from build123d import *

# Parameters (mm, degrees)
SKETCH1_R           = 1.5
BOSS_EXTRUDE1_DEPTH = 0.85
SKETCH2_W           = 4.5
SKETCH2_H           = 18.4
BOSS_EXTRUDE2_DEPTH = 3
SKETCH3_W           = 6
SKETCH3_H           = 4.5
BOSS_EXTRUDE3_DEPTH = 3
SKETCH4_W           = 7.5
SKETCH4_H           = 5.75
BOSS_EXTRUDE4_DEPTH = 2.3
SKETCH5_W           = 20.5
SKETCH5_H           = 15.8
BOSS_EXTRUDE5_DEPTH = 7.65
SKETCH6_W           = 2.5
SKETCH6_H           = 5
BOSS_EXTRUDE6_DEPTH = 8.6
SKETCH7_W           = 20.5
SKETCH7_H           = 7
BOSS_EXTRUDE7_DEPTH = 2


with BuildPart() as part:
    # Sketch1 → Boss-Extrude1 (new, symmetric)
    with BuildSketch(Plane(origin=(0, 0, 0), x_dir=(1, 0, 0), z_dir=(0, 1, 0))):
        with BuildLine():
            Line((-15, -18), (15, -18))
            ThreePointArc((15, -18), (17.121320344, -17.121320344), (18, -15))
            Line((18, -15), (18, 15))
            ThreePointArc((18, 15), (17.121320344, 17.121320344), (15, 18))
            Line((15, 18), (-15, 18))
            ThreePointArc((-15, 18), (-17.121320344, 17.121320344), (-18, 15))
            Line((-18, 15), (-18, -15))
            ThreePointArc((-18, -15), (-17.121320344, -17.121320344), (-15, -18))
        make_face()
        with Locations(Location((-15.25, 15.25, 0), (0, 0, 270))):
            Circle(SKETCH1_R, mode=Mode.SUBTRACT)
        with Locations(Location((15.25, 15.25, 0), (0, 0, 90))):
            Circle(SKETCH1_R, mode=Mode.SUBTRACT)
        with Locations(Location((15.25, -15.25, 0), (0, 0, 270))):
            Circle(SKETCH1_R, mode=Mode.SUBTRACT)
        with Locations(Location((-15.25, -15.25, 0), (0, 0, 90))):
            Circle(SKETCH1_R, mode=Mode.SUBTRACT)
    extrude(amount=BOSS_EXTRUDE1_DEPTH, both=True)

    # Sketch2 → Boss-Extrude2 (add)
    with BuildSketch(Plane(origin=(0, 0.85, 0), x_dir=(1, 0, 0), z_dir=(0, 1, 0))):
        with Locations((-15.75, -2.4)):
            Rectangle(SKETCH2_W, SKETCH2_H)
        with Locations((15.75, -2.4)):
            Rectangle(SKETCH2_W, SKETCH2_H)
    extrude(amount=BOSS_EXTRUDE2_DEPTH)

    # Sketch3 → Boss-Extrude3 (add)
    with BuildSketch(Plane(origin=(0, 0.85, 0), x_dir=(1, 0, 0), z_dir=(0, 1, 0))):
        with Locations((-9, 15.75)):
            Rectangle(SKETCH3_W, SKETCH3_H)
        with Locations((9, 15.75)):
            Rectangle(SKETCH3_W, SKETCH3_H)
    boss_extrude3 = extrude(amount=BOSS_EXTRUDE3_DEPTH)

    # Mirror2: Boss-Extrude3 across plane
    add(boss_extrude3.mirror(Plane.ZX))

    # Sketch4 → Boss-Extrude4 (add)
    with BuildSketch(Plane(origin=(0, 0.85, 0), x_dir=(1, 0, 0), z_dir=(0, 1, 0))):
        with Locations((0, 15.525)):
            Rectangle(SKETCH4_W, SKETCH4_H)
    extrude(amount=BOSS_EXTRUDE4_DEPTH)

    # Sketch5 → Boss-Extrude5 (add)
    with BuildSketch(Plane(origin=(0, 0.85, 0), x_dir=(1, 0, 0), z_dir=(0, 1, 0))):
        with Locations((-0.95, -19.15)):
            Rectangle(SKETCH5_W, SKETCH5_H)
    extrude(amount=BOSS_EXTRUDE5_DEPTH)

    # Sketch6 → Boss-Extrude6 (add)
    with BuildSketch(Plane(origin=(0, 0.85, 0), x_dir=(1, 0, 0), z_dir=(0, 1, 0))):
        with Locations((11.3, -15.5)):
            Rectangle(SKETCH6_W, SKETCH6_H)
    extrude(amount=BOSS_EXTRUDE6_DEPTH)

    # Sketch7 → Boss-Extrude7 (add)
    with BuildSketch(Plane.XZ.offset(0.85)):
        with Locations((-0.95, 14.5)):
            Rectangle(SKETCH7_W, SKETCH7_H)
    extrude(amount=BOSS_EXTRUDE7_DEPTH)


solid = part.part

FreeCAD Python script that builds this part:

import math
import FreeCAD as App
import Part
import Sketcher
Q = App.Units.Quantity

doc = App.newDocument("Part")
params = doc.addObject("Spreadsheet::Sheet", "Params")
for row, (alias, value) in enumerate([
    ("sketch1_diameter", "3 mm"),
    ("sketch1_radius", "3 mm"),
    ("sketch1_width", "30 mm"),
    ("pad1_length", "1.7 mm"),
    ("sketch2_width", "4.5 mm"),
    ("sketch2_height", "18.4 mm"),
    ("pad2_length", "3 mm"),
    ("sketch3_width", "6 mm"),
    ("sketch3_height", "4.5 mm"),
    ("pad3_length", "3 mm"),
    ("sketch4_width", "7.5 mm"),
    ("sketch4_height", "5.75 mm"),
    ("pad4_length", "2.3 mm"),
    ("sketch5_width", "20.5 mm"),
    ("sketch5_height", "15.8 mm"),
    ("pad5_length", "7.65 mm"),
    ("sketch6_height", "5 mm"),
    ("sketch6_width", "2.5 mm"),
    ("pad6_length", "8.6 mm"),
    ("sketch7_height", "7 mm"),
    ("sketch7_width", "20.5 mm"),
    ("pad7_length", "2 mm"),
], start=1):
    params.set(f"A{row}", alias)
    params.set(f"B{row}", "=" + value)
    params.setAlias(f"B{row}", alias)

body = doc.addObject("PartDesign::Body", "Body")

# Sketch on XZ plane
sketch1 = body.newObject("Sketcher::SketchObject", "Sketch")
sketch1.AttachmentSupport = (doc.getObject("XZ_Plane"), [""])
sketch1.MapMode = "FlatFace"
sketch1.addGeometry([
    Part.LineSegment(App.Vector(-15, 18, 0), App.Vector(15, 18, 0)),  # 0
    Part.ArcOfCircle(Part.Circle(App.Vector(15, 15, 0), App.Vector(0, 0, 1), 3), math.radians(0), math.radians(90)),  # 1
    Part.LineSegment(App.Vector(18, 15, 0), App.Vector(18, -15, 0)),  # 2
    Part.ArcOfCircle(Part.Circle(App.Vector(15, -15, 0), App.Vector(0, 0, 1), 3), math.radians(-90), math.radians(0)),  # 3
    Part.LineSegment(App.Vector(15, -18, 0), App.Vector(-15, -18, 0)),  # 4
    Part.ArcOfCircle(Part.Circle(App.Vector(-15, -15, 0), App.Vector(0, 0, 1), 3), math.radians(180), math.radians(270)),  # 5
    Part.LineSegment(App.Vector(-18, -15, 0), App.Vector(-18, 15, 0)),  # 6
    Part.ArcOfCircle(Part.Circle(App.Vector(-15, 15, 0), App.Vector(0, 0, 1), 3), math.radians(90), math.radians(180)),  # 7
    Part.Circle(App.Vector(-15.2, 15.2, 0), App.Vector(0, 0, 1), 1.5),  # 8
    Part.Circle(App.Vector(15.2, 15.2, 0), App.Vector(0, 0, 1), 1.5),  # 9
    Part.Circle(App.Vector(-15.2, -15.2, 0), App.Vector(0, 0, 1), 1.5),  # 10
    Part.Circle(App.Vector(15.2, -15.2, 0), App.Vector(0, 0, 1), 1.5),  # 11
], False)
sketch1.addConstraint([
    Sketcher.Constraint("Tangent", 0, 2, 1, 2),
    Sketcher.Constraint("Tangent", 1, 1, 2, 1),
    Sketcher.Constraint("Tangent", 2, 2, 3, 2),
    Sketcher.Constraint("Tangent", 3, 1, 4, 1),
    Sketcher.Constraint("Tangent", 4, 2, 5, 2),
    Sketcher.Constraint("Tangent", 5, 1, 6, 1),
    Sketcher.Constraint("Tangent", 6, 2, 7, 2),
    Sketcher.Constraint("Tangent", 7, 1, 0, 1),
    Sketcher.Constraint("Horizontal", 0),
    Sketcher.Constraint("Vertical", 2),
    Sketcher.Constraint("Horizontal", 4),
    Sketcher.Constraint("Vertical", 6),
    Sketcher.Constraint("Equal", 1, 3),
    Sketcher.Constraint("Equal", 3, 5),
    Sketcher.Constraint("Equal", 5, 7),
    Sketcher.Constraint("Equal", 8, 9),
    Sketcher.Constraint("Equal", 9, 10),
    Sketcher.Constraint("Equal", 10, 11),
    Sketcher.Constraint("Symmetric", 1, 3, 5, 3, -1, 1),
    Sketcher.Constraint("Symmetric", 9, 3, 10, 3, -1, 1),
    Sketcher.Constraint("Symmetric", 8, 3, 11, 3, -1, 1),
    Sketcher.Constraint("Symmetric", 8, 3, 9, 3, -2),
    Sketcher.Constraint("Equal", 4, 2),
    Sketcher.Constraint("Diameter", 8, Q("3 mm")),
    Sketcher.Constraint("Radius", 1, Q("3 mm")),
    Sketcher.Constraint("DistanceX", 0, 1, 0, 2, Q("30 mm")),
    Sketcher.Constraint("DistanceX", 8, 3, 9, 3, Q("30.5 mm")),
    Sketcher.Constraint("DistanceY", 10, 3, 8, 3, Q("30.5 mm")),
])
sketch1.setExpression("Constraints[23]", "Params.sketch1_diameter")
sketch1.setExpression("Constraints[24]", "Params.sketch1_radius")
sketch1.setExpression("Constraints[25]", "Params.sketch1_width")
pad1 = body.newObject("PartDesign::Pad", "Pad")
pad1.Profile = sketch1
pad1.setExpression("Length", "Params.pad1_length")
pad1.Midplane = True

# Sketch on XZ plane
sketch2 = body.newObject("Sketcher::SketchObject", "Sketch001")
sketch2.AttachmentSupport = (doc.getObject("XZ_Plane"), [""])
sketch2.MapMode = "FlatFace"
sketch2.AttachmentOffset = App.Placement(App.Vector(0, 0, -0.85), App.Rotation())
sketch2.addGeometry([
    Part.LineSegment(App.Vector(-18, -6.8, 0), App.Vector(-18, 11.6, 0)),  # 0
    Part.LineSegment(App.Vector(-18, 11.6, 0), App.Vector(-13.5, 11.6, 0)),  # 1
    Part.LineSegment(App.Vector(-13.5, 11.6, 0), App.Vector(-13.5, -6.8, 0)),  # 2
    Part.LineSegment(App.Vector(-13.5, -6.8, 0), App.Vector(-18, -6.8, 0)),  # 3
    Part.LineSegment(App.Vector(13.5, -6.8, 0), App.Vector(13.5, 11.6, 0)),  # 4
    Part.LineSegment(App.Vector(13.5, 11.6, 0), App.Vector(18, 11.6, 0)),  # 5
    Part.LineSegment(App.Vector(18, 11.6, 0), App.Vector(18, -6.8, 0)),  # 6
    Part.LineSegment(App.Vector(18, -6.8, 0), App.Vector(13.5, -6.8, 0)),  # 7
], False)
sketch2.addConstraint([
    Sketcher.Constraint("Coincident", 0, 2, 1, 1),
    Sketcher.Constraint("Coincident", 1, 2, 2, 1),
    Sketcher.Constraint("Coincident", 2, 2, 3, 1),
    Sketcher.Constraint("Coincident", 3, 2, 0, 1),
    Sketcher.Constraint("Coincident", 4, 2, 5, 1),
    Sketcher.Constraint("Coincident", 5, 2, 6, 1),
    Sketcher.Constraint("Coincident", 6, 2, 7, 1),
    Sketcher.Constraint("Coincident", 7, 2, 4, 1),
    Sketcher.Constraint("Vertical", 0),
    Sketcher.Constraint("Horizontal", 1),
    Sketcher.Constraint("Vertical", 2),
    Sketcher.Constraint("Horizontal", 3),
    Sketcher.Constraint("Vertical", 4),
    Sketcher.Constraint("Horizontal", 5),
    Sketcher.Constraint("Vertical", 6),
    Sketcher.Constraint("Horizontal", 7),
    Sketcher.Constraint("Symmetric", 1, 2, 4, 2, -2),
    Sketcher.Constraint("Symmetric", 3, 2, 6, 2, -2),
    Sketcher.Constraint("DistanceX", 1, 1, 1, 2, Q("4.5 mm")),
    Sketcher.Constraint("DistanceY", 0, 1, 0, 2, Q("18.4 mm")),
    Sketcher.Constraint("DistanceX", 0, 2, -1, 1, Q("18 mm")),
    Sketcher.Constraint("DistanceY", -1, 1, 0, 2, Q("11.6 mm")),
])
sketch2.setExpression("Constraints[18]", "Params.sketch2_width")
sketch2.setExpression("Constraints[19]", "Params.sketch2_height")
pad2 = body.newObject("PartDesign::Pad", "Pad001")
pad2.Profile = sketch2
pad2.setExpression("Length", "Params.pad2_length")
pad2.Reversed = True

# Sketch on XZ plane
sketch3 = body.newObject("Sketcher::SketchObject", "Sketch002")
sketch3.AttachmentSupport = (doc.getObject("XZ_Plane"), [""])
sketch3.MapMode = "FlatFace"
sketch3.AttachmentOffset = App.Placement(App.Vector(0, 0, -0.85), App.Rotation())
sketch3.addGeometry([
    Part.LineSegment(App.Vector(-12, -18, 0), App.Vector(-12, -13.5, 0)),  # 0
    Part.LineSegment(App.Vector(-12, -13.5, 0), App.Vector(-6, -13.5, 0)),  # 1
    Part.LineSegment(App.Vector(-6, -13.5, 0), App.Vector(-6, -18, 0)),  # 2
    Part.LineSegment(App.Vector(-6, -18, 0), App.Vector(-12, -18, 0)),  # 3
    Part.LineSegment(App.Vector(6, -18, 0), App.Vector(6, -13.5, 0)),  # 4
    Part.LineSegment(App.Vector(6, -13.5, 0), App.Vector(12, -13.5, 0)),  # 5
    Part.LineSegment(App.Vector(12, -13.5, 0), App.Vector(12, -18, 0)),  # 6
    Part.LineSegment(App.Vector(12, -18, 0), App.Vector(6, -18, 0)),  # 7
], False)
sketch3.addConstraint([
    Sketcher.Constraint("Coincident", 0, 2, 1, 1),
    Sketcher.Constraint("Coincident", 1, 2, 2, 1),
    Sketcher.Constraint("Coincident", 2, 2, 3, 1),
    Sketcher.Constraint("Coincident", 3, 2, 0, 1),
    Sketcher.Constraint("Coincident", 4, 2, 5, 1),
    Sketcher.Constraint("Coincident", 5, 2, 6, 1),
    Sketcher.Constraint("Coincident", 6, 2, 7, 1),
    Sketcher.Constraint("Coincident", 7, 2, 4, 1),
    Sketcher.Constraint("Vertical", 0),
    Sketcher.Constraint("Horizontal", 1),
    Sketcher.Constraint("Vertical", 2),
    Sketcher.Constraint("Horizontal", 3),
    Sketcher.Constraint("Vertical", 4),
    Sketcher.Constraint("Horizontal", 5),
    Sketcher.Constraint("Vertical", 6),
    Sketcher.Constraint("Horizontal", 7),
    Sketcher.Constraint("Symmetric", 1, 2, 4, 2, -2),
    Sketcher.Constraint("Symmetric", 3, 2, 6, 2, -2),
    Sketcher.Constraint("DistanceX", 1, 1, 1, 2, Q("6 mm")),
    Sketcher.Constraint("DistanceY", 0, 1, 0, 2, Q("4.5 mm")),
    Sketcher.Constraint("DistanceX", 0, 2, -1, 1, Q("12 mm")),
    Sketcher.Constraint("DistanceY", 2, 2, -1, 1, Q("18 mm")),
])
sketch3.setExpression("Constraints[18]", "Params.sketch3_width")
sketch3.setExpression("Constraints[19]", "Params.sketch3_height")
pad3 = body.newObject("PartDesign::Pad", "Pad002")
pad3.Profile = sketch3
pad3.setExpression("Length", "Params.pad3_length")
pad3.Reversed = True
doc.recompute()

mirrored = body.newObject("PartDesign::Mirrored", "Mirrored")
mirrored.Originals = [pad3]
mirrored.MirrorPlane = (doc.getObject("XZ_Plane"), [""])
body.Tip = mirrored

# Sketch on XZ plane
sketch4 = body.newObject("Sketcher::SketchObject", "Sketch003")
sketch4.AttachmentSupport = (doc.getObject("XZ_Plane"), [""])
sketch4.MapMode = "FlatFace"
sketch4.AttachmentOffset = App.Placement(App.Vector(0, 0, -0.85), App.Rotation())
sketch4.addGeometry([
    Part.LineSegment(App.Vector(-4, -18, 0), App.Vector(-4, -13, 0)),
    Part.LineSegment(App.Vector(-4, -13, 0), App.Vector(4, -13, 0)),
    Part.LineSegment(App.Vector(4, -13, 0), App.Vector(4, -18, 0)),
    Part.LineSegment(App.Vector(4, -18, 0), App.Vector(-4, -18, 0)),
], False)
sketch4.addConstraint([
    Sketcher.Constraint("Coincident", 0, 2, 1, 1),
    Sketcher.Constraint("Coincident", 1, 2, 2, 1),
    Sketcher.Constraint("Coincident", 2, 2, 3, 1),
    Sketcher.Constraint("Coincident", 3, 2, 0, 1),
    Sketcher.Constraint("Vertical", 0),
    Sketcher.Constraint("Horizontal", 1),
    Sketcher.Constraint("Vertical", 2),
    Sketcher.Constraint("Horizontal", 3),
    Sketcher.Constraint("DistanceX", 1, 1, 1, 2, Q("7.5 mm")),
    Sketcher.Constraint("DistanceY", 0, 1, 0, 2, Q("5.75 mm")),
    Sketcher.Constraint("DistanceY", 2, 2, -1, 1, Q("18.4 mm")),
    Sketcher.Constraint("DistanceX", 0, 2, -1, 1, Q("3.75 mm")),
])
sketch4.setExpression("Constraints[8]", "Params.sketch4_width")
sketch4.setExpression("Constraints[9]", "Params.sketch4_height")
pad4 = body.newObject("PartDesign::Pad", "Pad003")
pad4.Profile = sketch4
pad4.setExpression("Length", "Params.pad4_length")
pad4.Reversed = True

# Sketch on XZ plane
sketch5 = body.newObject("Sketcher::SketchObject", "Sketch004")
sketch5.AttachmentSupport = (doc.getObject("XZ_Plane"), [""])
sketch5.MapMode = "FlatFace"
sketch5.AttachmentOffset = App.Placement(App.Vector(0, 0, -0.85), App.Rotation())
sketch5.addGeometry([
    Part.LineSegment(App.Vector(-11, 11, 0), App.Vector(-11, 27, 0)),
    Part.LineSegment(App.Vector(-11, 27, 0), App.Vector(9, 27, 0)),
    Part.LineSegment(App.Vector(9, 27, 0), App.Vector(9, 11, 0)),
    Part.LineSegment(App.Vector(9, 11, 0), App.Vector(-11, 11, 0)),
], False)
sketch5.addConstraint([
    Sketcher.Constraint("Coincident", 0, 2, 1, 1),
    Sketcher.Constraint("Coincident", 1, 2, 2, 1),
    Sketcher.Constraint("Coincident", 2, 2, 3, 1),
    Sketcher.Constraint("Coincident", 3, 2, 0, 1),
    Sketcher.Constraint("Vertical", 0),
    Sketcher.Constraint("Horizontal", 1),
    Sketcher.Constraint("Vertical", 2),
    Sketcher.Constraint("Horizontal", 3),
    Sketcher.Constraint("DistanceX", 1, 1, 1, 2, Q("20.5 mm")),
    Sketcher.Constraint("DistanceY", 0, 1, 0, 2, Q("15.8 mm")),
    Sketcher.Constraint("DistanceX", 0, 2, -1, 1, Q("11.2 mm")),
    Sketcher.Constraint("DistanceY", -1, 1, 0, 2, Q("27.05 mm")),
])
sketch5.setExpression("Constraints[8]", "Params.sketch5_width")
sketch5.setExpression("Constraints[9]", "Params.sketch5_height")
pad5 = body.newObject("PartDesign::Pad", "Pad004")
pad5.Profile = sketch5
pad5.setExpression("Length", "Params.pad5_length")
pad5.Reversed = True

# Sketch on XZ plane
sketch6 = body.newObject("Sketcher::SketchObject", "Sketch005")
sketch6.AttachmentSupport = (doc.getObject("XZ_Plane"), [""])
sketch6.MapMode = "FlatFace"
sketch6.AttachmentOffset = App.Placement(App.Vector(0, 0, -0.85), App.Rotation())
sketch6.addGeometry([
    Part.LineSegment(App.Vector(10.1, 13, 0), App.Vector(10.1, 18, 0)),
    Part.LineSegment(App.Vector(10.1, 18, 0), App.Vector(12.6, 18, 0)),
    Part.LineSegment(App.Vector(12.6, 18, 0), App.Vector(12.6, 13, 0)),
    Part.LineSegment(App.Vector(12.6, 13, 0), App.Vector(10.1, 13, 0)),
], False)
sketch6.addConstraint([
    Sketcher.Constraint("Coincident", 0, 2, 1, 1),
    Sketcher.Constraint("Coincident", 1, 2, 2, 1),
    Sketcher.Constraint("Coincident", 2, 2, 3, 1),
    Sketcher.Constraint("Coincident", 3, 2, 0, 1),
    Sketcher.Constraint("Vertical", 0),
    Sketcher.Constraint("Horizontal", 1),
    Sketcher.Constraint("Vertical", 2),
    Sketcher.Constraint("Horizontal", 3),
    Sketcher.Constraint("DistanceY", 0, 1, 0, 2, Q("5 mm")),
    Sketcher.Constraint("DistanceX", 1, 1, 1, 2, Q("2.5 mm")),
    Sketcher.Constraint("DistanceY", -1, 1, 0, 2, Q("18 mm")),
    Sketcher.Constraint("DistanceX", -1, 1, 0, 2, Q("10.05 mm")),
])
sketch6.setExpression("Constraints[8]", "Params.sketch6_height")
sketch6.setExpression("Constraints[9]", "Params.sketch6_width")
pad6 = body.newObject("PartDesign::Pad", "Pad005")
pad6.Profile = sketch6
pad6.setExpression("Length", "Params.pad6_length")
pad6.Reversed = True

# Sketch on XZ plane
sketch7 = body.newObject("Sketcher::SketchObject", "Sketch006")
sketch7.AttachmentSupport = (doc.getObject("XZ_Plane"), [""])
sketch7.MapMode = "FlatFace"
sketch7.AttachmentOffset = App.Placement(App.Vector(0, 0, 0.85), App.Rotation())
sketch7.addGeometry([
    Part.LineSegment(App.Vector(-11, 18, 0), App.Vector(-11, 11, 0)),
    Part.LineSegment(App.Vector(-11, 11, 0), App.Vector(9, 11, 0)),
    Part.LineSegment(App.Vector(9, 11, 0), App.Vector(9, 18, 0)),
    Part.LineSegment(App.Vector(9, 18, 0), App.Vector(-11, 18, 0)),
], False)
sketch7.addConstraint([
    Sketcher.Constraint("Coincident", 0, 2, 1, 1),
    Sketcher.Constraint("Coincident", 1, 2, 2, 1),
    Sketcher.Constraint("Coincident", 2, 2, 3, 1),
    Sketcher.Constraint("Coincident", 3, 2, 0, 1),
    Sketcher.Constraint("Vertical", 0),
    Sketcher.Constraint("Horizontal", 1),
    Sketcher.Constraint("Vertical", 2),
    Sketcher.Constraint("Horizontal", 3),
    Sketcher.Constraint("DistanceY", 0, 2, 0, 1, Q("7 mm")),
    Sketcher.Constraint("DistanceX", 1, 1, 1, 2, Q("20.5 mm")),
    Sketcher.Constraint("DistanceY", -1, 1, 0, 2, Q("11 mm")),
    Sketcher.Constraint("DistanceX", 0, 2, -1, 1, Q("11.2 mm")),
])
sketch7.setExpression("Constraints[8]", "Params.sketch7_height")
sketch7.setExpression("Constraints[9]", "Params.sketch7_width")
pad7 = body.newObject("PartDesign::Pad", "Pad006")
pad7.Profile = sketch7
pad7.setExpression("Length", "Params.pad7_length")

doc.recompute()
